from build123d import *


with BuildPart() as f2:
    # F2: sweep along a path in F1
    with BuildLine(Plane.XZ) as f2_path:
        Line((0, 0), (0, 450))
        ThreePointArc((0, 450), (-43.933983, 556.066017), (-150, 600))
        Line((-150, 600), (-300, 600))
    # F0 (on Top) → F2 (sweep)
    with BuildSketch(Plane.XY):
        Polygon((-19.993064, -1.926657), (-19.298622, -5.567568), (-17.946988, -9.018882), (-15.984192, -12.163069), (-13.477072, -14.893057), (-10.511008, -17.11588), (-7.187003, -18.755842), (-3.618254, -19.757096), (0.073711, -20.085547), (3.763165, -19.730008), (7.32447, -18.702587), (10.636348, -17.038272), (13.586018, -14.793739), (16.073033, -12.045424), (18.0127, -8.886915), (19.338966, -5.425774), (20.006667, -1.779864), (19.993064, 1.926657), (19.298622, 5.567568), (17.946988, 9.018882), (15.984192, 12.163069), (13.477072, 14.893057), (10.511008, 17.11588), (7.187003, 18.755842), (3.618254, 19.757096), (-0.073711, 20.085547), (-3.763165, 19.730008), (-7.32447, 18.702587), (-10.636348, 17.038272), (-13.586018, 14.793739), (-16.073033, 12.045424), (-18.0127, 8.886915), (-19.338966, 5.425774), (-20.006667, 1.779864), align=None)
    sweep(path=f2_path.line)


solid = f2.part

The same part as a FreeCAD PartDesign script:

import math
import FreeCAD as App
import Part
import Sketcher
from FreeCAD import Vector
Q = App.Units.Quantity

doc = App.newDocument("Part")
body = doc.addObject("PartDesign::Body", "Body")

sketch1 = body.newObject("Sketcher::SketchObject", "Sketch")
sketch1.AttachmentSupport = (doc.getObject("XY_Plane"), [""])
sketch1.MapMode = "FlatFace"
sketch1.addGeometry([
    Part.LineSegment(Vector(-19.993064, -1.926657, 0), Vector(-19.298622, -5.567568, 0)),
    Part.LineSegment(Vector(-19.298622, -5.567568, 0), Vector(-17.946988, -9.018882, 0)),
    Part.LineSegment(Vector(-17.946988, -9.018882, 0), Vector(-15.984192, -12.163069, 0)),
    Part.LineSegment(Vector(-15.984192, -12.163069, 0), Vector(-13.477072, -14.893057, 0)),
    Part.LineSegment(Vector(-13.477072, -14.893057, 0), Vector(-10.511008, -17.11588, 0)),
    Part.LineSegment(Vector(-10.511008, -17.11588, 0), Vector(-7.187003, -18.755842, 0)),
    Part.LineSegment(Vector(-7.187003, -18.755842, 0), Vector(-3.618254, -19.757096, 0)),
    Part.LineSegment(Vector(-3.618254, -19.757096, 0), Vector(0.073711, -20.085547, 0)),
    Part.LineSegment(Vector(0.073711, -20.085547, 0), Vector(3.763165, -19.730008, 0)),
    Part.LineSegment(Vector(3.763165, -19.730008, 0), Vector(7.32447, -18.702587, 0)),
    Part.LineSegment(Vector(7.32447, -18.702587, 0), Vector(10.636348, -17.038272, 0)),
    Part.LineSegment(Vector(10.636348, -17.038272, 0), Vector(13.586018, -14.793739, 0)),
    Part.LineSegment(Vector(13.586018, -14.793739, 0), Vector(16.073033, -12.045424, 0)),
    Part.LineSegment(Vector(16.073033, -12.045424, 0), Vector(18.0127, -8.886915, 0)),
    Part.LineSegment(Vector(18.0127, -8.886915, 0), Vector(19.338966, -5.425774, 0)),
    Part.LineSegment(Vector(19.338966, -5.425774, 0), Vector(20.006667, -1.779864, 0)),
    Part.LineSegment(Vector(20.006667, -1.779864, 0), Vector(19.993064, 1.926657, 0)),
    Part.LineSegment(Vector(19.993064, 1.926657, 0), Vector(19.298622, 5.567568, 0)),
    Part.LineSegment(Vector(19.298622, 5.567568, 0), Vector(17.946988, 9.018882, 0)),
    Part.LineSegment(Vector(17.946988, 9.018882, 0), Vector(15.984192, 12.163069, 0)),
    Part.LineSegment(Vector(15.984192, 12.163069, 0), Vector(13.477072, 14.893057, 0)),
    Part.LineSegment(Vector(13.477072, 14.893057, 0), Vector(10.511008, 17.11588, 0)),
    Part.LineSegment(Vector(10.511008, 17.11588, 0), Vector(7.187003, 18.755842, 0)),
    Part.LineSegment(Vector(7.187003, 18.755842, 0), Vector(3.618254, 19.757096, 0)),
    Part.LineSegment(Vector(3.618254, 19.757096, 0), Vector(-0.073711, 20.085547, 0)),
    Part.LineSegment(Vector(-0.073711, 20.085547, 0), Vector(-3.763165, 19.730008, 0)),
    Part.LineSegment(Vector(-3.763165, 19.730008, 0), Vector(-7.32447, 18.702587, 0)),
    Part.LineSegment(Vector(-7.32447, 18.702587, 0), Vector(-10.636348, 17.038272, 0)),
    Part.LineSegment(Vector(-10.636348, 17.038272, 0), Vector(-13.586018, 14.793739, 0)),
    Part.LineSegment(Vector(-13.586018, 14.793739, 0), Vector(-16.073033, 12.045424, 0)),
    Part.LineSegment(Vector(-16.073033, 12.045424, 0), Vector(-18.0127, 8.886915, 0)),
    Part.LineSegment(Vector(-18.0127, 8.886915, 0), Vector(-19.338966, 5.425774, 0)),
    Part.LineSegment(Vector(-19.338966, 5.425774, 0), Vector(-20.006667, 1.779864, 0)),
    Part.LineSegment(Vector(-20.006667, 1.779864, 0), Vector(-19.993064, -1.926657, 0)),
], False)
sketch1.addConstraint([
    Sketcher.Constraint("Coincident", 0, 2, 1, 1),
    Sketcher.Constraint("Coincident", 1, 2, 2, 1),
    Sketcher.Constraint("Coincident", 2, 2, 3, 1),
    Sketcher.Constraint("Coincident", 3, 2, 4, 1),
    Sketcher.Constraint("Coincident", 4, 2, 5, 1),
    Sketcher.Constraint("Coincident", 5, 2, 6, 1),
    Sketcher.Constraint("Coincident", 6, 2, 7, 1),
    Sketcher.Constraint("Coincident", 7, 2, 8, 1),
    Sketcher.Constraint("Coincident", 8, 2, 9, 1),
    Sketcher.Constraint("Coincident", 9, 2, 10, 1),
    Sketcher.Constraint("Coincident", 10, 2, 11, 1),
    Sketcher.Constraint("Coincident", 11, 2, 12, 1),
    Sketcher.Constraint("Coincident", 12, 2, 13, 1),
    Sketcher.Constraint("Coincident", 13, 2, 14, 1),
    Sketcher.Constraint("Coincident", 14, 2, 15, 1),
    Sketcher.Constraint("Coincident", 15, 2, 16, 1),
    Sketcher.Constraint("Coincident", 16, 2, 17, 1),
    Sketcher.Constraint("Coincident", 17, 2, 18, 1),
    Sketcher.Constraint("Coincident", 18, 2, 19, 1),
    Sketcher.Constraint("Coincident", 19, 2, 20, 1),
    Sketcher.Constraint("Coincident", 20, 2, 21, 1),
    Sketcher.Constraint("Coincident", 21, 2, 22, 1),
    Sketcher.Constraint("Coincident", 22, 2, 23, 1),
    Sketcher.Constraint("Coincident", 23, 2, 24, 1),
    Sketcher.Constraint("Coincident", 24, 2, 25, 1),
    Sketcher.Constraint("Coincident", 25, 2, 26, 1),
    Sketcher.Constraint("Coincident", 26, 2, 27, 1),
    Sketcher.Constraint("Coincident", 27, 2, 28, 1),
    Sketcher.Constraint("Coincident", 28, 2, 29, 1),
    Sketcher.Constraint("Coincident", 29, 2, 30, 1),
    Sketcher.Constraint("Coincident", 30, 2, 31, 1),
    Sketcher.Constraint("Coincident", 31, 2, 32, 1),
    Sketcher.Constraint("Coincident", 32, 2, 33, 1),
    Sketcher.Constraint("Coincident", 33, 2, 0, 1),
    Sketcher.Constraint("Symmetric", 0, 2, 17, 2, -1, 1),
    Sketcher.Constraint("Symmetric", 1, 2, 18, 2, -1, 1),
    Sketcher.Constraint("Symmetric", 2, 2, 19, 2, -1, 1),
    Sketcher.Constraint("Symmetric", 3, 2, 20, 2, -1, 1),
    Sketcher.Constraint("Symmetric", 4, 2, 21, 2, -1, 1),
    Sketcher.Constraint("Symmetric", 5, 2, 22, 2, -1, 1),
    Sketcher.Constraint("Symmetric", 6, 2, 23, 2, -1, 1),
    Sketcher.Constraint("Symmetric", 7, 2, 24, 2, -1, 1),
    Sketcher.Constraint("Symmetric", 8, 2, 25, 2, -1, 1),
    Sketcher.Constraint("Symmetric", 9, 2, 26, 2, -1, 1),
    Sketcher.Constraint("Symmetric", 10, 2, 27, 2, -1, 1),
    Sketcher.Constraint("Symmetric", 11, 2, 28, 2, -1, 1),
    Sketcher.Constraint("Symmetric", 12, 2, 29, 2, -1, 1),
    Sketcher.Constraint("Symmetric", 13, 2, 30, 2, -1, 1),
    Sketcher.Constraint("Symmetric", 14, 2, 31, 2, -1, 1),
    Sketcher.Constraint("Symmetric", 15, 2, 32, 2, -1, 1),
    Sketcher.Constraint("Symmetric", 16, 2, 33, 2, -1, 1),
    Sketcher.Constraint("Equal", 0, 1),
    Sketcher.Constraint("Equal", 1, 2),
    Sketcher.Constraint("Equal", 2, 3),
    Sketcher.Constraint("Equal", 3, 4),
    Sketcher.Constraint("Equal", 4, 5),
    Sketcher.Constraint("Equal", 5, 6),
    Sketcher.Constraint("Equal", 6, 7),
    Sketcher.Constraint("Equal", 7, 8),
    Sketcher.Constraint("Equal", 8, 9),
    Sketcher.Constraint("Equal", 9, 10),
    Sketcher.Constraint("Equal", 10, 11),
    Sketcher.Constraint("Equal", 11, 12),
    Sketcher.Constraint("Equal", 12, 13),
    Sketcher.Constraint("Equal", 13, 14),
    Sketcher.Constraint("Equal", 14, 15),
    Sketcher.Constraint("Equal", 15, 16),
    Sketcher.Constraint("DistanceY", 4, 2, 1, 2, Q("8.096998 mm")),
    Sketcher.Constraint("DistanceX", -1, 1, 13, 2, Q("18.0127 mm")),
    Sketcher.Constraint("DistanceY", 2, 2, 0, 2, Q("6.595501 mm")),
    Sketcher.Constraint("DistanceX", 14, 2, 15, 2, Q("0.667701 mm")),
    Sketcher.Constraint("DistanceX", 14, 2, 16, 2, Q("0.654098 mm")),
    Sketcher.Constraint("DistanceY", 16, 2, 20, 2, Q("12.9664 mm")),
    Sketcher.Constraint("DistanceX", 1, 2, -1, 1, Q("17.946988 mm")),
    Sketcher.Constraint("DistanceY", 2, 2, -1, 1, Q("12.163069 mm")),
    Sketcher.Constraint("DistanceY", 4, 2, -1, 1, Q("17.11588 mm")),
    Sketcher.Constraint("DistanceX", -1, 1, 7, 2, Q("0.073711 mm")),
    Sketcher.Constraint("DistanceY", 8, 2, -1, 1, Q("19.730008 mm")),
    Sketcher.Constraint("DistanceX", -1, 1, 9, 2, Q("7.32447 mm")),
    Sketcher.Constraint("DistanceY", 10, 2, -1, 1, Q("17.038272 mm")),
    Sketcher.Constraint("DistanceY", 11, 2, -1, 1, Q("14.793739 mm")),
    Sketcher.Constraint("DistanceX", 0, 2, 2, 2, Q("3.31443 mm")),
    Sketcher.Constraint("DistanceX", 2, 2, 3, 2, Q("2.50712 mm")),
    Sketcher.Constraint("DistanceX", 3, 2, 5, 2, Q("6.290069 mm")),
    Sketcher.Constraint("DistanceX", 5, 2, 6, 2, Q("3.568749 mm")),
])

sketch2 = body.newObject("Sketcher::SketchObject", "Sketch001")
sketch2.AttachmentSupport = (doc.getObject("XZ_Plane"), [""])
sketch2.MapMode = "FlatFace"
sketch2.addGeometry([
    Part.LineSegment(Vector(0, 0, 0), Vector(0, 450, 0)),
    Part.ArcOfCircle(Part.Circle(Vector(-150.000001, 449.999999, 0), Vector(0, 0, 1), 150.000001), math.radians(0), math.radians(90)),
    Part.LineSegment(Vector(-150, 600, 0), Vector(-300, 600, 0)),
], False)
sketch2.addConstraint([
    Sketcher.Constraint("Tangent", 0, 2, 1, 1),
    Sketcher.Constraint("Tangent", 1, 2, 2, 1),
    Sketcher.Constraint("Vertical", 0),
    Sketcher.Constraint("Horizontal", 2),
    Sketcher.Constraint("Coincident", 0, 1, -1, 1),
    Sketcher.Constraint("Radius", 1, Q("150.000001 mm")),
    Sketcher.Constraint("DistanceX", 2, 2, 2, 1, Q("150 mm")),
    Sketcher.Constraint("DistanceY", 0, 1, 0, 2, Q("450 mm")),
])
doc.recompute()

additivepipe = body.newObject("PartDesign::AdditivePipe", "AdditivePipe")
additivepipe.Profile = sketch1
additivepipe.Spine = (sketch2, ["Edge1", "Edge2", "Edge3"])

doc.recompute()
